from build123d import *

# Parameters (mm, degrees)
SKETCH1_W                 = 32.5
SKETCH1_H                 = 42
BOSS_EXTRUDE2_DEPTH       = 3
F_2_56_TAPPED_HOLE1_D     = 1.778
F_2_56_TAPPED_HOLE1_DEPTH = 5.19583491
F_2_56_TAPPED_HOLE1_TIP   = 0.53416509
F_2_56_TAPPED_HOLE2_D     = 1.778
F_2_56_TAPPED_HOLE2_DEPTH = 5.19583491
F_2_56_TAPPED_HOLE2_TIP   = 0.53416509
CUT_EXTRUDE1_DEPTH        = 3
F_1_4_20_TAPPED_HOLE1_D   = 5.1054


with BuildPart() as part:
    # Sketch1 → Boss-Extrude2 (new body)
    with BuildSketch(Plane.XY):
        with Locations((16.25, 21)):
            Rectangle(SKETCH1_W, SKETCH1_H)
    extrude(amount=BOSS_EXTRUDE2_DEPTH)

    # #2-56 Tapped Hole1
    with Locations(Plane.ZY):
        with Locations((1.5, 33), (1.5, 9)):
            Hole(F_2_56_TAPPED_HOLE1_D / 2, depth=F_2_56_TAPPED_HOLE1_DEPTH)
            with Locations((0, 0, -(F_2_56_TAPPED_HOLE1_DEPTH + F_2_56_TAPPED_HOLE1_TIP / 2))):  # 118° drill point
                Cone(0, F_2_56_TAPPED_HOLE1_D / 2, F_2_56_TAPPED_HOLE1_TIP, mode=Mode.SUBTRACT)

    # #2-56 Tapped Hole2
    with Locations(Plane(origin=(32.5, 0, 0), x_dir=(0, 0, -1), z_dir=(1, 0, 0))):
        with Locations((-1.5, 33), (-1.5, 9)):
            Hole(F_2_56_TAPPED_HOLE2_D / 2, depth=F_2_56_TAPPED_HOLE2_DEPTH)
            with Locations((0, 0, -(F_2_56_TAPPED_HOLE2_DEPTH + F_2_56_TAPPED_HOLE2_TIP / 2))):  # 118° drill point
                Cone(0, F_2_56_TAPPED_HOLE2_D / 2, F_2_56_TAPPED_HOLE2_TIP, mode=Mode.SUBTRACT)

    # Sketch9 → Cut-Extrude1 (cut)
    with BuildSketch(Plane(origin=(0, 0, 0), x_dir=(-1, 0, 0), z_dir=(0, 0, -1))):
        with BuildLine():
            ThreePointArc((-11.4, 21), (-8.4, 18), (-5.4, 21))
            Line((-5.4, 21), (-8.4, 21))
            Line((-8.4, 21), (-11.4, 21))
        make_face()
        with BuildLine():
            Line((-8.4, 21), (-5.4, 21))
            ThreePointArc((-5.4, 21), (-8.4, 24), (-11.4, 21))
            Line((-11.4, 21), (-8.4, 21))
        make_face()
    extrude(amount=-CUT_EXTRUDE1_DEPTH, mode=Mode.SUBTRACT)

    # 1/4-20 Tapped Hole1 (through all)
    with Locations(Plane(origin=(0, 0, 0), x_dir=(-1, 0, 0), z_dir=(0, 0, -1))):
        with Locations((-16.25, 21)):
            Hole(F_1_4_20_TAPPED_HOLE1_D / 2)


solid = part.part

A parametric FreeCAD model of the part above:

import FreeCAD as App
import Part
import Sketcher
from FreeCAD import Vector
Q = App.Units.Quantity


def add_polygon(sketch, points):
    """Adds a closed chain of lines whose ends are joined by coincident constraints."""
    first, n = sketch.GeometryCount, len(points)
    for a, b in zip(points, points[1:] + points[:1]):
        sketch.addGeometry(Part.LineSegment(App.Vector(*a, 0), App.Vector(*b, 0)), False)
    for i in range(n):
        sketch.addConstraint(Sketcher.Constraint("Coincident", first + i, 2, first + (i + 1) % n, 1))

doc = App.newDocument("Part")
body = doc.addObject("PartDesign::Body", "Body")

# Sketch on XY plane
sketch1 = body.newObject("Sketcher::SketchObject", "Sketch")
sketch1.AttachmentSupport = (doc.getObject("XY_Plane"), [""])
sketch1.MapMode = "FlatFace"
add_polygon(sketch1, [(0, 42), (0, 0), (32.5, 0), (32.5, 42)])  # lines 0-3
sketch1.addConstraint([
    Sketcher.Constraint("Vertical", 0),
    Sketcher.Constraint("Horizontal", 1),
    Sketcher.Constraint("Vertical", 2),
    Sketcher.Constraint("Horizontal", 3),
    Sketcher.Constraint("Coincident", 0, 2, -1, 1),
    Sketcher.Constraint("DistanceY", 0, 2, 0, 1, Q("42 mm")),
    Sketcher.Constraint("DistanceX", 1, 1, 1, 2, Q("32.5 mm")),
])
pad1 = body.newObject("PartDesign::Pad", "Pad")
pad1.Profile = sketch1
pad1.Length = 3

# Sketch on YZ plane
sketch2 = body.newObject("Sketcher::SketchObject", "Sketch001")
sketch2.AttachmentSupport = (doc.getObject("YZ_Plane"), [""])
sketch2.MapMode = "FlatFace"
sketch2.addGeometry([
    Part.Circle(Vector(33, 1.5, 0), Vector(0, 0, 1), 0.889),
    Part.Circle(Vector(9, 1.5, 0), Vector(0, 0, 1), 0.889),
], False)
sketch2.addConstraint([
    Sketcher.Constraint("Equal", 0, 1),
    Sketcher.Constraint("Horizontal", 0, 3, 1, 3),
    Sketcher.Constraint("Diameter", 0, Q("1.778 mm")),
    Sketcher.Constraint("DistanceX", -1, 1, 0, 3, Q("33 mm")),
    Sketcher.Constraint("DistanceX", -1, 1, 1, 3, Q("9 mm")),
    Sketcher.Constraint("DistanceY", -1, 1, 0, 3, Q("1.5 mm")),
])
doc.recompute()
hole = body.newObject("PartDesign::Hole", "Hole")
hole.Profile = sketch2
hole.ThreadType = "None"
hole.Diameter = 1.778
hole.DepthType = "Dimension"
hole.Depth = 5.195835
hole.DrillPoint = "Angled"
hole.DrillPointAngle = 118
hole.Reversed = True

# Sketch on YZ plane
sketch3 = body.newObject("Sketcher::SketchObject", "Sketch002")
sketch3.AttachmentSupport = (doc.getObject("YZ_Plane"), [""])
sketch3.MapMode = "FlatFace"
sketch3.AttachmentOffset = App.Placement(Vector(0, 0, 32.5), App.Rotation())
sketch3.addGeometry([
    Part.Circle(Vector(33, 1.5, 0), Vector(0, 0, 1), 0.889),
    Part.Circle(Vector(9, 1.5, 0), Vector(0, 0, 1), 0.889),
], False)
sketch3.addConstraint([
    Sketcher.Constraint("Equal", 0, 1),
    Sketcher.Constraint("Horizontal", 0, 3, 1, 3),
    Sketcher.Constraint("Diameter", 0, Q("1.778 mm")),
    Sketcher.Constraint("DistanceX", -1, 1, 0, 3, Q("33 mm")),
    Sketcher.Constraint("DistanceX", -1, 1, 1, 3, Q("9 mm")),
    Sketcher.Constraint("DistanceY", -1, 1, 0, 3, Q("1.5 mm")),
])
doc.recompute()
hole2 = body.newObject("PartDesign::Hole", "Hole001")
hole2.Profile = sketch3
hole2.ThreadType = "None"
hole2.Diameter = 1.778
hole2.DepthType = "Dimension"
hole2.Depth = 5.195835
hole2.DrillPoint = "Angled"
hole2.DrillPointAngle = 118

# Sketch on XY plane
sketch4 = body.newObject("Sketcher::SketchObject", "Sketch003")
sketch4.AttachmentSupport = (doc.getObject("XY_Plane"), [""])
sketch4.MapMode = "FlatFace"
sketch4.addGeometry(Part.Circle(Vector(8.4, 21, 0), Vector(0, 0, 1), 3), False)
sketch4.addConstraint([
    Sketcher.Constraint("Diameter", 0, Q("6 mm")),
    Sketcher.Constraint("DistanceY", -1, 1, 0, 3, Q("21 mm")),
    Sketcher.Constraint("DistanceX", -1, 1, 0, 3, Q("8.4 mm")),
])
pocket1 = body.newObject("PartDesign::Pocket", "Pocket")
pocket1.Profile = sketch4
pocket1.Length = 3
pocket1.Reversed = True

# Sketch on XY plane
sketch5 = body.newObject("Sketcher::SketchObject", "Sketch004")
sketch5.AttachmentSupport = (doc.getObject("XY_Plane"), [""])
sketch5.MapMode = "FlatFace"
sketch5.addGeometry(Part.Circle(Vector(16.25, 21, 0), Vector(0, 0, 1), 2.5527), False)
sketch5.addConstraint([
    Sketcher.Constraint("DistanceY", -1, 1, 0, 3, Q("21 mm")),
    Sketcher.Constraint("Diameter", 0, Q("5.1054 mm")),
    Sketcher.Constraint("DistanceX", -1, 1, 0, 3, Q("16.25 mm")),
])
doc.recompute()
hole3 = body.newObject("PartDesign::Hole", "Hole002")
hole3.Profile = sketch5
hole3.ThreadType = "None"
hole3.Diameter = 5.1054
hole3.DepthType = "ThroughAll"
hole3.Reversed = True

doc.recompute()
